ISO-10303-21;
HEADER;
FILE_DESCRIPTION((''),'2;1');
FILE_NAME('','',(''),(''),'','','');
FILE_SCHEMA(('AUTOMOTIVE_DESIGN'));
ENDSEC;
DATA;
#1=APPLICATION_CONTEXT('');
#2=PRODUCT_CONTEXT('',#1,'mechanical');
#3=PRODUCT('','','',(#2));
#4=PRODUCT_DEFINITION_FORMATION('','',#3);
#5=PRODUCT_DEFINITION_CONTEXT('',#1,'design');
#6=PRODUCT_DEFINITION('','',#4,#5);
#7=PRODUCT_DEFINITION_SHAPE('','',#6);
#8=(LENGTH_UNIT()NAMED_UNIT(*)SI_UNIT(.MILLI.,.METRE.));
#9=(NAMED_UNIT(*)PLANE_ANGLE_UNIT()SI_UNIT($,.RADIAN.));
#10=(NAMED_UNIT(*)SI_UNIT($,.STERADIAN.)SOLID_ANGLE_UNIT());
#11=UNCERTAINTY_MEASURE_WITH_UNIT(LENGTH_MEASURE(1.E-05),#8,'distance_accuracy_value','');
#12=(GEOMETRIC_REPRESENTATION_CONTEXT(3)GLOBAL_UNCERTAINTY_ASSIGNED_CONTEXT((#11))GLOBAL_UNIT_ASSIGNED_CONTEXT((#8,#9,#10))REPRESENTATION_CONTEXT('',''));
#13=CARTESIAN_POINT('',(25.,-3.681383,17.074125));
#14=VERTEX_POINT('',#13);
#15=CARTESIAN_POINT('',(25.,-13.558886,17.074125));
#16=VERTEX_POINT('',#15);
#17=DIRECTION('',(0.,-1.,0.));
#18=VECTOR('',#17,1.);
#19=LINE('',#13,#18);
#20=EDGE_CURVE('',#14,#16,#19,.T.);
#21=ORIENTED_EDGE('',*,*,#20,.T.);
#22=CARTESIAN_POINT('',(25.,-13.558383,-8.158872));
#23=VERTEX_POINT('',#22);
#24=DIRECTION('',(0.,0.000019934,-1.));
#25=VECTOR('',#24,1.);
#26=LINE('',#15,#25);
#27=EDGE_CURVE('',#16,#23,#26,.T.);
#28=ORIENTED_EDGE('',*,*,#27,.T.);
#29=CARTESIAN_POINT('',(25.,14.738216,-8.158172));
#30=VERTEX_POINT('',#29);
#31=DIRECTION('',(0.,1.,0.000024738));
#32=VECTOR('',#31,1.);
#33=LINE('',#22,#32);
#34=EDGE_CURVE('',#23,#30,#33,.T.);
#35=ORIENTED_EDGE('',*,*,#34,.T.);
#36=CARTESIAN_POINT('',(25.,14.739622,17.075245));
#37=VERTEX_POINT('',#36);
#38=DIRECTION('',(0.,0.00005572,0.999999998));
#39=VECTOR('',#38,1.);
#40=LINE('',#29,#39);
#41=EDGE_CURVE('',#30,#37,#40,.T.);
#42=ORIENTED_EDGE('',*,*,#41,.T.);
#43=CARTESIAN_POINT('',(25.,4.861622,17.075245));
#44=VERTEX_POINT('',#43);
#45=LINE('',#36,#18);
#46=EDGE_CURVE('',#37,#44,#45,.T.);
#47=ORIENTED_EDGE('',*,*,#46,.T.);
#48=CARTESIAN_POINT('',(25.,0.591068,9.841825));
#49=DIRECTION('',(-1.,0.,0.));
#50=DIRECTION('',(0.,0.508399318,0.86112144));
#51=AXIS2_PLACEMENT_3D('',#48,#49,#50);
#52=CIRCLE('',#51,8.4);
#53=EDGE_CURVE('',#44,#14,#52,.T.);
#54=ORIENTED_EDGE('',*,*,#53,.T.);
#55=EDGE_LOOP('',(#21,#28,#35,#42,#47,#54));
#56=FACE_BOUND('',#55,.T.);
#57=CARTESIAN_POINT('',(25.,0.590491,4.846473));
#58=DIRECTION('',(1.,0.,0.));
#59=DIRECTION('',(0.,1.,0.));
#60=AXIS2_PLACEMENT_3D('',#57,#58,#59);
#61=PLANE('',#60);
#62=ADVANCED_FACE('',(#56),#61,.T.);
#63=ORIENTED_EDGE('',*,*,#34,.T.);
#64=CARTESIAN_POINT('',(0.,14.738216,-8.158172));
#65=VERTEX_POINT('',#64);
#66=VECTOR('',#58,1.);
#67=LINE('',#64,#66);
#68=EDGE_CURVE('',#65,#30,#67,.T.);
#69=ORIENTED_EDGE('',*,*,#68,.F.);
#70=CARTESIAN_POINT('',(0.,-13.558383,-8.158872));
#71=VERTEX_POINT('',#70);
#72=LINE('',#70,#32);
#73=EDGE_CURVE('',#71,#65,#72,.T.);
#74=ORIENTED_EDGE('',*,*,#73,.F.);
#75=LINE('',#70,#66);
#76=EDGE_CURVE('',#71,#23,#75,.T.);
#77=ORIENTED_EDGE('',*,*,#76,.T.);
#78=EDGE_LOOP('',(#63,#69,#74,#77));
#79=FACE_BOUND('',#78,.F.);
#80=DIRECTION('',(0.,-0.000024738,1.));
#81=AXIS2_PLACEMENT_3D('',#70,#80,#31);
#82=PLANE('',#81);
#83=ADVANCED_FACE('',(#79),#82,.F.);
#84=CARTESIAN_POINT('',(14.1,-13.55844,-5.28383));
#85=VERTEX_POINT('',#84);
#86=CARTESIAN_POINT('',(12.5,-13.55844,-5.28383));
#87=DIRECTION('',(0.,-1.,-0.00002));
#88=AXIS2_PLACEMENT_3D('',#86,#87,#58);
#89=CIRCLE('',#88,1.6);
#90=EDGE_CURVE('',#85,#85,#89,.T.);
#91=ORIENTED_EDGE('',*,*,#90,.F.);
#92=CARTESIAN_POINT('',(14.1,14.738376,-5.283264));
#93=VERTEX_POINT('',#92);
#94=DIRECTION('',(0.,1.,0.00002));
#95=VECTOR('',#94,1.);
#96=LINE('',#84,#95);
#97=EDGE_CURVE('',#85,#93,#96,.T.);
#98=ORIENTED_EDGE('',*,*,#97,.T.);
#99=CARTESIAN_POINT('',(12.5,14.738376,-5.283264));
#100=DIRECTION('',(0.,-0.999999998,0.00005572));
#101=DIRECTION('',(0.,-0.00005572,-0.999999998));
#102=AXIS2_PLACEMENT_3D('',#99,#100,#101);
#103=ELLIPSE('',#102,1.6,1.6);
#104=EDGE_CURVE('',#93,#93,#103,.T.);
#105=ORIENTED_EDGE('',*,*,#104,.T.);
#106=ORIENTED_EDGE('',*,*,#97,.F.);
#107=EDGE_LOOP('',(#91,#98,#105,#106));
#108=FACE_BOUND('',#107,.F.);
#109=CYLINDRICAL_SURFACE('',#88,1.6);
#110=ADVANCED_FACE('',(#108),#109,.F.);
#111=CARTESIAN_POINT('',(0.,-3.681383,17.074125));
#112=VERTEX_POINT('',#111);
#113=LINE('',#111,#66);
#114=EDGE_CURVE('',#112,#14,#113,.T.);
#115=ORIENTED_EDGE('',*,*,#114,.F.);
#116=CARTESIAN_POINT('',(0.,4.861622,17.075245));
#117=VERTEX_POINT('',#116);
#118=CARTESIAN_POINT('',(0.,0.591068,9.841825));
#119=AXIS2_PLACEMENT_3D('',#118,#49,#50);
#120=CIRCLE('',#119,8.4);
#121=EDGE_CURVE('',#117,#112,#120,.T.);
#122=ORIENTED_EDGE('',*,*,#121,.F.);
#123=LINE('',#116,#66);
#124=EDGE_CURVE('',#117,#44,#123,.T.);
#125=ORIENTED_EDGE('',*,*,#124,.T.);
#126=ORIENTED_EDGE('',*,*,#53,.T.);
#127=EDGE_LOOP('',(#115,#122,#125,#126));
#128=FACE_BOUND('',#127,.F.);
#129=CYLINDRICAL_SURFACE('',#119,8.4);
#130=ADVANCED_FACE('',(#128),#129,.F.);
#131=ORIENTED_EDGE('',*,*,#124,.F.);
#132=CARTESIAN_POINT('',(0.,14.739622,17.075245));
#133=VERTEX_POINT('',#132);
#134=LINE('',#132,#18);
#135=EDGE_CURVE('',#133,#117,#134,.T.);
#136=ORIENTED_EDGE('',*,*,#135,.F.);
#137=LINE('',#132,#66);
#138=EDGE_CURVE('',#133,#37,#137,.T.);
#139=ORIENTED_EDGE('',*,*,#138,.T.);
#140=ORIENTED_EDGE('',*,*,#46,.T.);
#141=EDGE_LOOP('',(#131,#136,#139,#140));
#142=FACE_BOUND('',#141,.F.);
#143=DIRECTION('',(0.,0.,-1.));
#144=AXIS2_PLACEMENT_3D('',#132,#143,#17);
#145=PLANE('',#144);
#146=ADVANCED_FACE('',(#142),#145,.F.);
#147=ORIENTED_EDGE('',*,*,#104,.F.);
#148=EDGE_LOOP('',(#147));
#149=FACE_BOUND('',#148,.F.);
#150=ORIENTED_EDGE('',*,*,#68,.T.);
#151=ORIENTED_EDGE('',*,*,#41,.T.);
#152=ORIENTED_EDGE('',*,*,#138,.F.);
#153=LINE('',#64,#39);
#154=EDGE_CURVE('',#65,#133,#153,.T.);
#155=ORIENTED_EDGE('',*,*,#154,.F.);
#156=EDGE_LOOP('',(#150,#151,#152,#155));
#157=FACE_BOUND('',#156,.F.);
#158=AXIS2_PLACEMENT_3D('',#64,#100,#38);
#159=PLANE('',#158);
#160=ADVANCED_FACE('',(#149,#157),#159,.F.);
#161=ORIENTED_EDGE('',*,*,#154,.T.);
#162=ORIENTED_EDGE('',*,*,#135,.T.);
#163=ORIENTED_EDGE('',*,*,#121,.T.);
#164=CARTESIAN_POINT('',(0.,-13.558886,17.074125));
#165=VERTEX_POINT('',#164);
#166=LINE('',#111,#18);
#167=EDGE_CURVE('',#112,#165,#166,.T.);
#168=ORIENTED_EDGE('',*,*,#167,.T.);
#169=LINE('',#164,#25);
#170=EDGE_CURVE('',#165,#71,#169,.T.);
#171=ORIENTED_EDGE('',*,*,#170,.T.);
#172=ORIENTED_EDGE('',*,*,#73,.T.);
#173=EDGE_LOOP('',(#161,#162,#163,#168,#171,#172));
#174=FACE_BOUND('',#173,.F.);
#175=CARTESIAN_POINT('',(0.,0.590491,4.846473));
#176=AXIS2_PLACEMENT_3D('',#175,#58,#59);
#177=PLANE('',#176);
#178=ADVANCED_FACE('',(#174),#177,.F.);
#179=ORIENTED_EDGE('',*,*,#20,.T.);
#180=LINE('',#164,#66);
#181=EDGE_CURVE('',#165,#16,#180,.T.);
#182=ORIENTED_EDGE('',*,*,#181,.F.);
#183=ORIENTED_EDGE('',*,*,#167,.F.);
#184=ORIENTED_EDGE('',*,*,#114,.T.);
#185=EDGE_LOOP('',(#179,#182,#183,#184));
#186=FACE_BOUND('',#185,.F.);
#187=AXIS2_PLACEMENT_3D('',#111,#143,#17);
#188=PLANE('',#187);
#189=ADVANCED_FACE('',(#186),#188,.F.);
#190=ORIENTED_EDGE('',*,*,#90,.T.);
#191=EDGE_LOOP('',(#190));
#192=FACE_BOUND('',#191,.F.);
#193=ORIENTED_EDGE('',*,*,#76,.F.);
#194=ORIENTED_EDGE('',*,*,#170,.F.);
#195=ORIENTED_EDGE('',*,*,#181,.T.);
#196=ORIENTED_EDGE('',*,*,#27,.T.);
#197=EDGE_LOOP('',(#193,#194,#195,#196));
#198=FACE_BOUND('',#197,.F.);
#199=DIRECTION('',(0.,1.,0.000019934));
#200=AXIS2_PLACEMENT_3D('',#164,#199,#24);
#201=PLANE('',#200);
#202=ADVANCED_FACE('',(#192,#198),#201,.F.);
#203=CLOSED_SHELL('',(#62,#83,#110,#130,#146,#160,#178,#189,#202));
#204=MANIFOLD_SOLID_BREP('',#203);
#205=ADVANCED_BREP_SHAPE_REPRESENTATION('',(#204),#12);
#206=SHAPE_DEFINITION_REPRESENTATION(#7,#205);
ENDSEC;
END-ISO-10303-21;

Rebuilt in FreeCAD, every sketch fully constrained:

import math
import FreeCAD as App
import Part
import Sketcher
Q = App.Units.Quantity

doc = App.newDocument("Part")
body = doc.addObject("PartDesign::Body", "Body")

# Sketch on YZ plane
sketch1 = body.newObject("Sketcher::SketchObject", "Sketch")
sketch1.AttachmentSupport = (doc.getObject("YZ_Plane"), [""])
sketch1.MapMode = "FlatFace"
sketch1.addGeometry(Part.ArcOfCircle(Part.Circle(App.Vector(0.591068, 9.841825, 0), App.Vector(0, 0, 1), 8.4), math.radians(120.572291), math.radians(419.442732)), False)
sketch1.addGeometry(Part.LineSegment(App.Vector(-3.681383, 17.074125, 0), App.Vector(-13.558886, 17.074125, 0)), False)
sketch1.addGeometry(Part.LineSegment(App.Vector(-13.558886, 17.074125, 0), App.Vector(-13.558383, -8.158872, 0)), False)
sketch1.addGeometry(Part.LineSegment(App.Vector(-13.558383, -8.158872, 0), App.Vector(14.738216, -8.158172, 0)), False)
sketch1.addGeometry(Part.LineSegment(App.Vector(14.738216, -8.158172, 0), App.Vector(14.739622, 17.075245, 0)), False)
sketch1.addGeometry(Part.LineSegment(App.Vector(14.739622, 17.075245, 0), App.Vector(4.861622, 17.075245, 0)), False)
sketch1.addConstraint(Sketcher.Constraint("Coincident", 0, 1, 1, 1))
sketch1.addConstraint(Sketcher.Constraint("Coincident", 1, 2, 2, 1))
sketch1.addConstraint(Sketcher.Constraint("Coincident", 2, 2, 3, 1))
sketch1.addConstraint(Sketcher.Constraint("Coincident", 3, 2, 4, 1))
sketch1.addConstraint(Sketcher.Constraint("Coincident", 4, 2, 5, 1))
sketch1.addConstraint(Sketcher.Constraint("Coincident", 5, 2, 0, 2))
sketch1.addConstraint(Sketcher.Constraint("Horizontal", 1))
sketch1.addConstraint(Sketcher.Constraint("Horizontal", 5))
sketch1.addConstraint(Sketcher.Constraint("Radius", 0, Q("8.4 mm")))
sketch1.addConstraint(Sketcher.Constraint("DistanceX", 5, 2, 5, 1, Q("9.878 mm")))
sketch1.addConstraint(Sketcher.Constraint("DistanceX", 2, 2, 0, 1, Q("9.877 mm")))
sketch1.addConstraint(Sketcher.Constraint("Distance", 3, Q("28.296599 mm")))
sketch1.addConstraint(Sketcher.Constraint("DistanceY", 0, 3, 0, 1, Q("7.2323 mm")))
sketch1.addConstraint(Sketcher.Constraint("DistanceY", 2, 2, 3, 2, Q("0.0007 mm")))
sketch1.addConstraint(Sketcher.Constraint("DistanceX", 1, 2, 3, 2, Q("28.297102 mm")))
sketch1.addConstraint(Sketcher.Constraint("DistanceX", -1, 1, 5, 2, Q("4.861622 mm")))
sketch1.addConstraint(Sketcher.Constraint("DistanceY", 0, 3, 4, 2, Q("7.23342 mm")))
sketch1.addConstraint(Sketcher.Constraint("Distance", 2, Q("25.232997 mm")))
sketch1.addConstraint(Sketcher.Constraint("DistanceY", -1, 1, 0, 3, Q("9.841825 mm")))
pad1 = body.newObject("PartDesign::Pad", "Pad")
pad1.Profile = sketch1
pad1.Length = 25

# Sketch on XZ plane
sketch2 = body.newObject("Sketcher::SketchObject", "Sketch001")
sketch2.AttachmentSupport = (doc.getObject("XZ_Plane"), [""])
sketch2.MapMode = "FlatFace"
sketch2.AttachmentOffset = App.Placement(App.Vector(0, 0, 13.558546), App.Rotation())
sketch2.addGeometry(Part.Circle(App.Vector(12.5, -5.28383, 0), App.Vector(0, 0, 1), 1.6), False)
sketch2.addConstraint(Sketcher.Constraint("Diameter", 0, Q("3.2 mm")))
sketch2.addConstraint(Sketcher.Constraint("DistanceX", -1, 1, 0, 3, Q("12.5 mm")))
sketch2.addConstraint(Sketcher.Constraint("DistanceY", 0, 3, -1, 1, Q("5.28383 mm")))
pocket1 = body.newObject("PartDesign::Pocket", "Pocket")
pocket1.Profile = sketch2
pocket1.Length = 32

doc.recompute()
